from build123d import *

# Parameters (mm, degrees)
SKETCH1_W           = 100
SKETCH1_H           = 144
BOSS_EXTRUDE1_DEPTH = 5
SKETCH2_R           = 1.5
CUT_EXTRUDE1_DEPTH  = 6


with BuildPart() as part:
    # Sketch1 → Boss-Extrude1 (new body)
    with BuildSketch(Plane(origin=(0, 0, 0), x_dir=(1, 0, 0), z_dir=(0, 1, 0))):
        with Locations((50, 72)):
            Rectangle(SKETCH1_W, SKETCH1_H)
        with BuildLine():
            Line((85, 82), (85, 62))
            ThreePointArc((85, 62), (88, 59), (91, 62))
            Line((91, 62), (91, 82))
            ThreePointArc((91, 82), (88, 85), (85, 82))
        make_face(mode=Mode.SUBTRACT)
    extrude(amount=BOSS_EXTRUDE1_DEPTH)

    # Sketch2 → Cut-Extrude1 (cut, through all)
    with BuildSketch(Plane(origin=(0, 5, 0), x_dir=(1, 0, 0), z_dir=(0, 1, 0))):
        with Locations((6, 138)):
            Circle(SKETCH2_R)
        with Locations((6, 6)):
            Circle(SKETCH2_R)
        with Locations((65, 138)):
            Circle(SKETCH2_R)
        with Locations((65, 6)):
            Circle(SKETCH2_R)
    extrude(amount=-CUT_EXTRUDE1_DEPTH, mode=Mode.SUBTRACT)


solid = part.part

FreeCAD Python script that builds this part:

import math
import FreeCAD as App
import Part
import Sketcher
from FreeCAD import Vector

doc = App.newDocument("Part")
body = doc.addObject("PartDesign::Body", "Body")

sketch1 = doc.addObject("Sketcher::SketchObject", "Sketch")
body.addObject(sketch1)
sketch1.AttachmentSupport = (doc.XZ_Plane, [""])
sketch1.MapMode = "FlatFace"
sketch1.addGeometry([
    Part.LineSegment(Vector(0, -144, 0), Vector(0, 0, 0)),
    Part.LineSegment(Vector(0, 0, 0), Vector(100, 0, 0)),
    Part.LineSegment(Vector(100, 0, 0), Vector(100, -144, 0)),
    Part.LineSegment(Vector(100, -144, 0), Vector(0, -144, 0)),
    Part.LineSegment(Vector(85, -62, 0), Vector(85, -82, 0)),
    Part.ArcOfCircle(Part.Circle(Vector(88, -82, 0), Vector(0, 0, 1), 3), math.radians(180), math.radians(360)),
    Part.LineSegment(Vector(91, -82, 0), Vector(91, -62, 0)),
    Part.ArcOfCircle(Part.Circle(Vector(88, -62, 0), Vector(0, 0, 1), 3), math.radians(0), math.radians(180)),
], False)
sketch1.addConstraint([
    Sketcher.Constraint("Coincident", 0, 2, 1, 1),
    Sketcher.Constraint("Coincident", 1, 2, 2, 1),
    Sketcher.Constraint("Coincident", 2, 2, 3, 1),
    Sketcher.Constraint("Coincident", 3, 2, 0, 1),
    Sketcher.Constraint("Tangent", 4, 2, 5, 1),
    Sketcher.Constraint("Tangent", 5, 2, 6, 1),
    Sketcher.Constraint("Tangent", 6, 2, 7, 1),
    Sketcher.Constraint("Tangent", 7, 2, 4, 1),
    Sketcher.Constraint("Vertical", 0),
    Sketcher.Constraint("Horizontal", 1),
    Sketcher.Constraint("Vertical", 2),
    Sketcher.Constraint("Horizontal", 3),
    Sketcher.Constraint("Vertical", 4),
    Sketcher.Constraint("Vertical", 6),
    Sketcher.Constraint("Coincident", 0, 2, -1, 1),
    Sketcher.Constraint("Radius", 5, 3.0),
    Sketcher.Constraint("DistanceX", 1, 1, 1, 2, 100.0),
    Sketcher.Constraint("DistanceY", 0, 1, 0, 2, 144.0),
    Sketcher.Constraint("DistanceY", 4, 2, 4, 1, 20.0),
    Sketcher.Constraint("DistanceX", -1, 1, 5, 3, 88.0),
    Sketcher.Constraint("DistanceY", 5, 3, -1, 1, 82.0),
])
pad1 = doc.addObject("PartDesign::Pad", "Pad")
body.addObject(pad1)
pad1.Profile = sketch1
pad1.Length = 5
pad1.Reversed = True

sketch2 = doc.addObject("Sketcher::SketchObject", "Sketch001")
body.addObject(sketch2)
sketch2.AttachmentSupport = (doc.XZ_Plane, [""])
sketch2.MapMode = "FlatFace"
sketch2.AttachmentOffset = App.Placement(Vector(0, 0, -5), App.Rotation())
sketch2.addGeometry([
    Part.Circle(Vector(6, -138, 0), Vector(0, 0, 1), 1.5),
    Part.Circle(Vector(6, -6, 0), Vector(0, 0, 1), 1.5),
    Part.Circle(Vector(65, -138, 0), Vector(0, 0, 1), 1.5),
    Part.Circle(Vector(65, -6, 0), Vector(0, 0, 1), 1.5),
], False)
sketch2.addConstraint([
    Sketcher.Constraint("Equal", 0, 1),
    Sketcher.Constraint("Equal", 1, 2),
    Sketcher.Constraint("Equal", 2, 3),
    Sketcher.Constraint("Horizontal", 0, 3, 2, 3),
    Sketcher.Constraint("Horizontal", 1, 3, 3, 3),
    Sketcher.Constraint("Vertical", 0, 3, 1, 3),
    Sketcher.Constraint("Vertical", 2, 3, 3, 3),
    Sketcher.Constraint("Diameter", 0, 3.0),
    Sketcher.Constraint("DistanceX", -1, 1, 0, 3, 6.0),
    Sketcher.Constraint("DistanceY", 0, 3, -1, 1, 138.0),
    Sketcher.Constraint("DistanceY", 1, 3, -1, 1, 6.0),
    Sketcher.Constraint("DistanceX", -1, 1, 2, 3, 65.0),
])
pocket1 = doc.addObject("PartDesign::Pocket", "Pocket")
body.addObject(pocket1)
pocket1.Profile = sketch2
pocket1.Type = "ThroughAll"
pocket1.Reversed = True

doc.recompute()
